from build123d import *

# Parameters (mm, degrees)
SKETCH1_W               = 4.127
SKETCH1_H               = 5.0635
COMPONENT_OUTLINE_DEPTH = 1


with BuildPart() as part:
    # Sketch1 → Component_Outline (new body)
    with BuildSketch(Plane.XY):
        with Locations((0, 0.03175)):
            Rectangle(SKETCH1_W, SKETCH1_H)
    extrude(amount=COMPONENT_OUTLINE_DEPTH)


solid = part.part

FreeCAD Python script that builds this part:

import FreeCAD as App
import Part
import Sketcher
Q = App.Units.Quantity

doc = App.newDocument("Part")
params = doc.addObject("Spreadsheet::Sheet", "Params")
for row, (alias, value) in enumerate([
    ("pad1_length", "1 mm"),
], start=1):
    params.set(f"A{row}", alias)
    params.set(f"B{row}", "=" + value)
    params.setAlias(f"B{row}", alias)

body = doc.addObject("PartDesign::Body", "Body")

# Sketch on XY plane
sketch1 = doc.addObject("Sketcher::SketchObject", "Sketch")
body.addObject(sketch1)
sketch1.AttachmentSupport = (doc.XY_Plane, [""])
sketch1.MapMode = "FlatFace"
sketch1.addGeometry([
    Part.LineSegment(App.Vector(-2.1, 2.6, 0), App.Vector(-2.1, -2.5, 0)),
    Part.LineSegment(App.Vector(-2.1, -2.5, 0), App.Vector(2.1, -2.5, 0)),
    Part.LineSegment(App.Vector(2.1, -2.5, 0), App.Vector(2.1, 2.6, 0)),
    Part.LineSegment(App.Vector(2.1, 2.6, 0), App.Vector(-2.1, 2.6, 0)),
], False)
sketch1.addConstraint([
    Sketcher.Constraint("Coincident", 0, 2, 1, 1),
    Sketcher.Constraint("Coincident", 1, 2, 2, 1),
    Sketcher.Constraint("Coincident", 2, 2, 3, 1),
    Sketcher.Constraint("Coincident", 3, 2, 0, 1),
    Sketcher.Constraint("Vertical", 0),
    Sketcher.Constraint("Horizontal", 1),
    Sketcher.Constraint("Vertical", 2),
    Sketcher.Constraint("Horizontal", 3),
    Sketcher.Constraint("DistanceY", 0, 2, -1, 1, Q("2.5 mm")),
    Sketcher.Constraint("DistanceX", 1, 1, 1, 2, Q("4.127 mm")),
    Sketcher.Constraint("DistanceY", 0, 2, 0, 1, Q("5.0635 mm")),
    Sketcher.Constraint("DistanceX", 0, 2, -1, 1, Q("2.0635 mm")),
])
pad1 = doc.addObject("PartDesign::Pad", "Pad")
body.addObject(pad1)
pad1.Profile = sketch1
pad1.setExpression("Length", "Params.pad1_length")

doc.recompute()
